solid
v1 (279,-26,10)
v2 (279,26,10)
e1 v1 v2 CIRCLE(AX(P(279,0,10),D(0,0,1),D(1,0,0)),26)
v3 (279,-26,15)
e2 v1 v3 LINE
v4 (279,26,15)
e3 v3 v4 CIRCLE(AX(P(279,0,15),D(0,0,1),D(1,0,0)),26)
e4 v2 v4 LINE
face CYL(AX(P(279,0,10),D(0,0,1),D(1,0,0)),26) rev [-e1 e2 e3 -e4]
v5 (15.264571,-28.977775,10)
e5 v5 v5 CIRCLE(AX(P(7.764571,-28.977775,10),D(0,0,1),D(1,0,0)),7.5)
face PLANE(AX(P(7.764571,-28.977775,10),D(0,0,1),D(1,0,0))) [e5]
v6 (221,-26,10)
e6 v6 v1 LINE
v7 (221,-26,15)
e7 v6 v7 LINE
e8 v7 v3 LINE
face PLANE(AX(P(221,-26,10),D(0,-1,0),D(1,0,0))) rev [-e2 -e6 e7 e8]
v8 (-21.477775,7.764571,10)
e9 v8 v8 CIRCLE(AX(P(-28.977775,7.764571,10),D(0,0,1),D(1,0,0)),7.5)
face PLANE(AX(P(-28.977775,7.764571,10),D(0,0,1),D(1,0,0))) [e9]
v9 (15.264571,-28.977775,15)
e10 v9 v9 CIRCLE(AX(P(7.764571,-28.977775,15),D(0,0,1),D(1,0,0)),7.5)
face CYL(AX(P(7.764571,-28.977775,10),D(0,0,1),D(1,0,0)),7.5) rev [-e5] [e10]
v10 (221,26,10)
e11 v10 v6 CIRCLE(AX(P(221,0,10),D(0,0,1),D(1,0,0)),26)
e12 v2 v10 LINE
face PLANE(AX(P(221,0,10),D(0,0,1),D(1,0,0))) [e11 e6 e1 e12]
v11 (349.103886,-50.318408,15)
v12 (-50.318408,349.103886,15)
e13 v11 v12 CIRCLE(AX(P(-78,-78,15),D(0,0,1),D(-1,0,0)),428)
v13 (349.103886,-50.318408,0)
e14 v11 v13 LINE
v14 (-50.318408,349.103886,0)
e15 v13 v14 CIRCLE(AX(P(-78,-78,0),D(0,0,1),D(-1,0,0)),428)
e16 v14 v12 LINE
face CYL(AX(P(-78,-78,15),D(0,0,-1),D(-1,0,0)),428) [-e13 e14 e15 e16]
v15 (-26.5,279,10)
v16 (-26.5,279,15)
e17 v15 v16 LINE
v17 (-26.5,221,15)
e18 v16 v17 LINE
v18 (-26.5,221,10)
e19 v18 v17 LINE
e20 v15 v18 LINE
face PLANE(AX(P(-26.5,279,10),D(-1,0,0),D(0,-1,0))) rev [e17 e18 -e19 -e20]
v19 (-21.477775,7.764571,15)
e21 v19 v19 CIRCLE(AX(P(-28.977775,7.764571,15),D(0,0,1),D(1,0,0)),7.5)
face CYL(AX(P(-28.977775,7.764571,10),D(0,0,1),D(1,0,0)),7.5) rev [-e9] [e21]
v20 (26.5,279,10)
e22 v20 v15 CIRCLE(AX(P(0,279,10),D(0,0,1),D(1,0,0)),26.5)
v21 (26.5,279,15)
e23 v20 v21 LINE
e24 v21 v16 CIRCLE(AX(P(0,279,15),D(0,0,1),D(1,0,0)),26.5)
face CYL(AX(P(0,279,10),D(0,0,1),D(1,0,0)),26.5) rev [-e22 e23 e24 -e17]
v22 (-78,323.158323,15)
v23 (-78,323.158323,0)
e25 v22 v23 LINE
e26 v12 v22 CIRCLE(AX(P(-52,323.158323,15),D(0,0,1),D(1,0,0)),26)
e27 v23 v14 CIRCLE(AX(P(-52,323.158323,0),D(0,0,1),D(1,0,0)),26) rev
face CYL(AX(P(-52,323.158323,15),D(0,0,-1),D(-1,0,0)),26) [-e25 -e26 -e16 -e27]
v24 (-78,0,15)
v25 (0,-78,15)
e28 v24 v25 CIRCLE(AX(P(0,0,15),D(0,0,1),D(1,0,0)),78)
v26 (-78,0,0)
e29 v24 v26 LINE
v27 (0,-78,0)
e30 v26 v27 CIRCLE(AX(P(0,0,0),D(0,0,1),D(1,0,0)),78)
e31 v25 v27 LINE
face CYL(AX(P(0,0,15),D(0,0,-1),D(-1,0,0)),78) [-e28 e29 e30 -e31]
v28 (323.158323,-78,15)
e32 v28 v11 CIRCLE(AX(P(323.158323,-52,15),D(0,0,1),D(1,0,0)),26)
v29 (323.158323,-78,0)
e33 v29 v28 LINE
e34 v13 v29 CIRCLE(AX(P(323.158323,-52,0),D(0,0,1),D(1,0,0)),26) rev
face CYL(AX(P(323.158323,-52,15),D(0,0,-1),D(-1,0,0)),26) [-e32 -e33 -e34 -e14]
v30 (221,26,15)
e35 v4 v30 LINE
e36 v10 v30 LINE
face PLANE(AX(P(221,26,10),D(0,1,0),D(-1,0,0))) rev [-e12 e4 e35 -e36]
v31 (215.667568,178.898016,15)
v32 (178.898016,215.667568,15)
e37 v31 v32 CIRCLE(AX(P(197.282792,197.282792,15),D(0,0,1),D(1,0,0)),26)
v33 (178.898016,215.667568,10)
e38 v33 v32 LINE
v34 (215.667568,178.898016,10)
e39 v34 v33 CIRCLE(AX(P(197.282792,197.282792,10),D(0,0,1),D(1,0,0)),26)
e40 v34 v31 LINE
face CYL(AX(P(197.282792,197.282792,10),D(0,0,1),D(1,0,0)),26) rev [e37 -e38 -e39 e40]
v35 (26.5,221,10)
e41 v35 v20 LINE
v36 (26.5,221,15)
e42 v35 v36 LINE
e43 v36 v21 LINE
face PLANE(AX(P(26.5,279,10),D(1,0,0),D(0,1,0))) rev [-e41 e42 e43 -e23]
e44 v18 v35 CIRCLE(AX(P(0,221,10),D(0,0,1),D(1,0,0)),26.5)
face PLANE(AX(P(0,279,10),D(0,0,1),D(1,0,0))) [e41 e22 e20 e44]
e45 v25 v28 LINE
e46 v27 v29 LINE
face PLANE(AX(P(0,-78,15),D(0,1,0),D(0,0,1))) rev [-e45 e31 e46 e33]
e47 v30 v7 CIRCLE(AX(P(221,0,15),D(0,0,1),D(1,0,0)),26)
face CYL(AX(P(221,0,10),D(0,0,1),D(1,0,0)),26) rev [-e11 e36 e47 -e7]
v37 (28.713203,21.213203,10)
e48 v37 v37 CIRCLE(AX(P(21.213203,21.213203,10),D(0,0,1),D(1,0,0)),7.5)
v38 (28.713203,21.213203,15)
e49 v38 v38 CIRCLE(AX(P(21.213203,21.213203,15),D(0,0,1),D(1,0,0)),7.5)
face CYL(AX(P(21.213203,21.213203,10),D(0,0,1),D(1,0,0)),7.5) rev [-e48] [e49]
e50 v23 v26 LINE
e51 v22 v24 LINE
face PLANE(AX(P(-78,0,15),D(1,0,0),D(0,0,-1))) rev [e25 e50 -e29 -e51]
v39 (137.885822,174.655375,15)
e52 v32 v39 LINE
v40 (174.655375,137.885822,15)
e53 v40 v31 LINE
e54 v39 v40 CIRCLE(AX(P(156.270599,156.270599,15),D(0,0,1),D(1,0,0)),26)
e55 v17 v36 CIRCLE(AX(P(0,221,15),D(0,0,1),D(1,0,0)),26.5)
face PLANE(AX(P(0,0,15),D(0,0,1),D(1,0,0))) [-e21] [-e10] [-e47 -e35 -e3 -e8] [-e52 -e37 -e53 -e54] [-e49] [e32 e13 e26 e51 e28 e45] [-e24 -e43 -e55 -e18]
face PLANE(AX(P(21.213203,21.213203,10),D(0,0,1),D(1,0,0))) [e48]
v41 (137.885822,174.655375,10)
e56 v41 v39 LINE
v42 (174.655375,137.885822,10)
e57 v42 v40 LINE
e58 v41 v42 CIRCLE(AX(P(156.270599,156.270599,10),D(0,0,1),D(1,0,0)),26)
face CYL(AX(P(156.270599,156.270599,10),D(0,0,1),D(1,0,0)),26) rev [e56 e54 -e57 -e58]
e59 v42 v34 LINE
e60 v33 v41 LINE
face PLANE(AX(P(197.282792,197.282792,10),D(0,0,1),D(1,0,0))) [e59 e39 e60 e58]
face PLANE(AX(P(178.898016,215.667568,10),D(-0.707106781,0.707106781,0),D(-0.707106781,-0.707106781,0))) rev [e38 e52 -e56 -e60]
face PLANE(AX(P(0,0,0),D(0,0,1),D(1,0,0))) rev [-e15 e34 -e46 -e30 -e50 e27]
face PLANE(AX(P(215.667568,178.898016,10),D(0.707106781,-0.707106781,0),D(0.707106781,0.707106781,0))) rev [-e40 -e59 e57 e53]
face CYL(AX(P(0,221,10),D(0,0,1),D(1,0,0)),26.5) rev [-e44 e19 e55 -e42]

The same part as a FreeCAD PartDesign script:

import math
import FreeCAD as App
import Part
import Sketcher
Q = App.Units.Quantity


def edges_at(feature, points):
    """Names of the edges that pass closest to the given points."""
    edges = feature.Shape.Edges
    near = lambda p: min(range(len(edges)), key=lambda i: edges[i].distToShape(Part.Vertex(*p))[0])
    return sorted({f"Edge{near(p) + 1}" for p in points})

doc = App.newDocument("Part")
params = doc.addObject("Spreadsheet::Sheet", "Params")
for row, (alias, value) in enumerate([
    ("sketch1_radius", "78 mm"),
    ("sketch1_radius2", "428 mm"),
    ("pad1_length", "15 mm"),
    ("sketch2_diameter", "15 mm"),
    ("sketch2_radius", "26 mm"),
    ("sketch2_radius2", "26.5 mm"),
    ("sketch2_width", "58 mm"),
    ("sketch2_length", "58 mm"),
    ("pocket1_length", "5 mm"),
    ("fillet_radius", "26 mm"),
], start=1):
    params.set(f"A{row}", alias)
    params.set(f"B{row}", "=" + value)
    params.setAlias(f"B{row}", alias)

body = doc.addObject("PartDesign::Body", "Body")

# Sketch on XY plane
sketch1 = doc.addObject("Sketcher::SketchObject", "Sketch")
body.addObject(sketch1)
sketch1.AttachmentSupport = (doc.XY_Plane, [""])
sketch1.MapMode = "FlatFace"
sketch1.addGeometry([
    Part.LineSegment(App.Vector(-78, 350, 0), App.Vector(-78, 0, 0)),
    Part.ArcOfCircle(Part.Circle(App.Vector(0, 0, 0), App.Vector(0, 0, 1), 78), math.radians(180), math.radians(270)),
    Part.LineSegment(App.Vector(0, -78, 0), App.Vector(350, -78, 0)),
    Part.ArcOfCircle(Part.Circle(App.Vector(-78, -78, 0), App.Vector(0, 0, 1), 428), math.radians(0), math.radians(90)),
], False)
sketch1.addConstraint([
    Sketcher.Constraint("Tangent", 0, 2, 1, 1),
    Sketcher.Constraint("Tangent", 1, 2, 2, 1),
    Sketcher.Constraint("Coincident", 2, 2, 3, 1),
    Sketcher.Constraint("Coincident", 3, 2, 0, 1),
    Sketcher.Constraint("Vertical", 0),
    Sketcher.Constraint("Horizontal", 2),
    Sketcher.Constraint("Coincident", 1, 3, -1, 1),
    Sketcher.Constraint("Horizontal", 3, 3, 1, 2),
    Sketcher.Constraint("Vertical", 3, 3, 0, 2),
    Sketcher.Constraint("Radius", 1, Q("78 mm")),
    Sketcher.Constraint("Radius", 3, Q("428 mm")),
])
sketch1.setExpression("Constraints[9]", "Params.sketch1_radius")
sketch1.setExpression("Constraints[10]", "Params.sketch1_radius2")
pad1 = doc.addObject("PartDesign::Pad", "Pad")
body.addObject(pad1)
pad1.Profile = sketch1
pad1.setExpression("Length", "Params.pad1_length")

# Sketch on XY plane
sketch2 = doc.addObject("Sketcher::SketchObject", "Sketch001")
body.addObject(sketch2)
sketch2.AttachmentSupport = (doc.XY_Plane, [""])
sketch2.MapMode = "FlatFace"
sketch2.AttachmentOffset = App.Placement(App.Vector(0, 0, 15), App.Rotation())
sketch2.addGeometry([
    Part.Circle(App.Vector(21, 21, 0), App.Vector(0, 0, 1), 8),  # 0
    Part.Circle(App.Vector(8, -29, 0), App.Vector(0, 0, 1), 8),  # 1
    Part.Circle(App.Vector(-29, 8, 0), App.Vector(0, 0, 1), 8),  # 2
    Part.LineSegment(App.Vector(26, 221, 0), App.Vector(26, 279, 0)),  # 3
    Part.ArcOfCircle(Part.Circle(App.Vector(0, 279, 0), App.Vector(0, 0, 1), 26), math.radians(0), math.radians(180)),  # 4
    Part.LineSegment(App.Vector(-26, 279, 0), App.Vector(-26, 221, 0)),  # 5
    Part.ArcOfCircle(Part.Circle(App.Vector(0, 221, 0), App.Vector(0, 0, 1), 26), math.radians(180), math.radians(360)),  # 6
    Part.LineSegment(App.Vector(175, 138, 0), App.Vector(216, 179, 0)),  # 7
    Part.ArcOfCircle(Part.Circle(App.Vector(197, 197, 0), App.Vector(0, 0, 1), 26), math.radians(-45), math.radians(135)),  # 8
    Part.LineSegment(App.Vector(179, 216, 0), App.Vector(138, 175, 0)),  # 9
    Part.ArcOfCircle(Part.Circle(App.Vector(156, 156, 0), App.Vector(0, 0, 1), 26), math.radians(135), math.radians(315)),  # 10
    Part.LineSegment(App.Vector(279, 26, 0), App.Vector(221, 26, 0)),  # 11
    Part.ArcOfCircle(Part.Circle(App.Vector(221, 0, 0), App.Vector(0, 0, 1), 26), math.radians(90), math.radians(270)),  # 12
    Part.LineSegment(App.Vector(221, -26, 0), App.Vector(279, -26, 0)),  # 13
    Part.ArcOfCircle(Part.Circle(App.Vector(279, 0, 0), App.Vector(0, 0, 1), 26), math.radians(-90), math.radians(90)),  # 14
], False)
sketch2.addConstraint([
    Sketcher.Constraint("Tangent", 3, 2, 4, 1),
    Sketcher.Constraint("Tangent", 4, 2, 5, 1),
    Sketcher.Constraint("Tangent", 5, 2, 6, 1),
    Sketcher.Constraint("Tangent", 6, 2, 3, 1),
    Sketcher.Constraint("Tangent", 7, 2, 8, 1),
    Sketcher.Constraint("Tangent", 8, 2, 9, 1),
    Sketcher.Constraint("Tangent", 9, 2, 10, 1),
    Sketcher.Constraint("Tangent", 10, 2, 7, 1),
    Sketcher.Constraint("Tangent", 11, 2, 12, 1),
    Sketcher.Constraint("Tangent", 12, 2, 13, 1),
    Sketcher.Constraint("Tangent", 13, 2, 14, 1),
    Sketcher.Constraint("Tangent", 14, 2, 11, 1),
    Sketcher.Constraint("Vertical", 3),
    Sketcher.Constraint("Vertical", 5),
    Sketcher.Constraint("Horizontal", 11),
    Sketcher.Constraint("Horizontal", 13),
    Sketcher.Constraint("Equal", 0, 1),
    Sketcher.Constraint("Equal", 1, 2),
    Sketcher.Constraint("Equal", 8, 10),
    Sketcher.Constraint("Equal", 10, 12),
    Sketcher.Constraint("PointOnObject", 4, 3, -2),
    Sketcher.Constraint("PointOnObject", 12, 3, -1),
    Sketcher.Constraint("Equal", 13, 3),
    Sketcher.Constraint("Diameter", 0, Q("15 mm")),
    Sketcher.Constraint("Radius", 8, Q("26 mm")),
    Sketcher.Constraint("Radius", 4, Q("26.5 mm")),
    Sketcher.Constraint("DistanceX", 11, 2, 11, 1, Q("58 mm")),
    Sketcher.Constraint("Angle", 7, Q("45 deg")),
    Sketcher.Constraint("Distance", 7, Q("58 mm")),
    Sketcher.Constraint("DistanceY", -1, 1, 4, 3, Q("279 mm")),
    Sketcher.Constraint("DistanceX", -1, 1, 12, 3, Q("221 mm")),
    Sketcher.Constraint("DistanceX", -1, 1, 10, 3, Q("156.270599 mm")),
    Sketcher.Constraint("DistanceY", -1, 1, 10, 3, Q("156.270599 mm")),
    Sketcher.Constraint("DistanceX", -1, 1, 1, 3, Q("7.764571 mm")),
    Sketcher.Constraint("DistanceY", -1, 1, 2, 3, Q("7.764571 mm")),
    Sketcher.Constraint("DistanceY", 1, 3, 0, 3, Q("50.190978 mm")),
    Sketcher.Constraint("DistanceX", 2, 3, 0, 3, Q("50.190978 mm")),
    Sketcher.Constraint("DistanceX", 0, 3, 8, 3, Q("176.069589 mm")),
    Sketcher.Constraint("DistanceY", 0, 3, 8, 3, Q("176.069589 mm")),
])
sketch2.setExpression("Constraints[23]", "Params.sketch2_diameter")
sketch2.setExpression("Constraints[24]", "Params.sketch2_radius")
sketch2.setExpression("Constraints[25]", "Params.sketch2_radius2")
sketch2.setExpression("Constraints[26]", "Params.sketch2_width")
sketch2.setExpression("Constraints[28]", "Params.sketch2_length")
pocket1 = doc.addObject("PartDesign::Pocket", "Pocket")
body.addObject(pocket1)
pocket1.Profile = sketch2
pocket1.setExpression("Length", "Params.pocket1_length")
doc.recompute()

fillet = doc.addObject("PartDesign::Fillet", "Fillet")
body.addObject(fillet)
fillet.Base = (pocket1, edges_at(pocket1, [(-78, 350, 7.5), (350, -78, 7.5)]))
fillet.setExpression("Radius", "Params.fillet_radius")

doc.recompute()
